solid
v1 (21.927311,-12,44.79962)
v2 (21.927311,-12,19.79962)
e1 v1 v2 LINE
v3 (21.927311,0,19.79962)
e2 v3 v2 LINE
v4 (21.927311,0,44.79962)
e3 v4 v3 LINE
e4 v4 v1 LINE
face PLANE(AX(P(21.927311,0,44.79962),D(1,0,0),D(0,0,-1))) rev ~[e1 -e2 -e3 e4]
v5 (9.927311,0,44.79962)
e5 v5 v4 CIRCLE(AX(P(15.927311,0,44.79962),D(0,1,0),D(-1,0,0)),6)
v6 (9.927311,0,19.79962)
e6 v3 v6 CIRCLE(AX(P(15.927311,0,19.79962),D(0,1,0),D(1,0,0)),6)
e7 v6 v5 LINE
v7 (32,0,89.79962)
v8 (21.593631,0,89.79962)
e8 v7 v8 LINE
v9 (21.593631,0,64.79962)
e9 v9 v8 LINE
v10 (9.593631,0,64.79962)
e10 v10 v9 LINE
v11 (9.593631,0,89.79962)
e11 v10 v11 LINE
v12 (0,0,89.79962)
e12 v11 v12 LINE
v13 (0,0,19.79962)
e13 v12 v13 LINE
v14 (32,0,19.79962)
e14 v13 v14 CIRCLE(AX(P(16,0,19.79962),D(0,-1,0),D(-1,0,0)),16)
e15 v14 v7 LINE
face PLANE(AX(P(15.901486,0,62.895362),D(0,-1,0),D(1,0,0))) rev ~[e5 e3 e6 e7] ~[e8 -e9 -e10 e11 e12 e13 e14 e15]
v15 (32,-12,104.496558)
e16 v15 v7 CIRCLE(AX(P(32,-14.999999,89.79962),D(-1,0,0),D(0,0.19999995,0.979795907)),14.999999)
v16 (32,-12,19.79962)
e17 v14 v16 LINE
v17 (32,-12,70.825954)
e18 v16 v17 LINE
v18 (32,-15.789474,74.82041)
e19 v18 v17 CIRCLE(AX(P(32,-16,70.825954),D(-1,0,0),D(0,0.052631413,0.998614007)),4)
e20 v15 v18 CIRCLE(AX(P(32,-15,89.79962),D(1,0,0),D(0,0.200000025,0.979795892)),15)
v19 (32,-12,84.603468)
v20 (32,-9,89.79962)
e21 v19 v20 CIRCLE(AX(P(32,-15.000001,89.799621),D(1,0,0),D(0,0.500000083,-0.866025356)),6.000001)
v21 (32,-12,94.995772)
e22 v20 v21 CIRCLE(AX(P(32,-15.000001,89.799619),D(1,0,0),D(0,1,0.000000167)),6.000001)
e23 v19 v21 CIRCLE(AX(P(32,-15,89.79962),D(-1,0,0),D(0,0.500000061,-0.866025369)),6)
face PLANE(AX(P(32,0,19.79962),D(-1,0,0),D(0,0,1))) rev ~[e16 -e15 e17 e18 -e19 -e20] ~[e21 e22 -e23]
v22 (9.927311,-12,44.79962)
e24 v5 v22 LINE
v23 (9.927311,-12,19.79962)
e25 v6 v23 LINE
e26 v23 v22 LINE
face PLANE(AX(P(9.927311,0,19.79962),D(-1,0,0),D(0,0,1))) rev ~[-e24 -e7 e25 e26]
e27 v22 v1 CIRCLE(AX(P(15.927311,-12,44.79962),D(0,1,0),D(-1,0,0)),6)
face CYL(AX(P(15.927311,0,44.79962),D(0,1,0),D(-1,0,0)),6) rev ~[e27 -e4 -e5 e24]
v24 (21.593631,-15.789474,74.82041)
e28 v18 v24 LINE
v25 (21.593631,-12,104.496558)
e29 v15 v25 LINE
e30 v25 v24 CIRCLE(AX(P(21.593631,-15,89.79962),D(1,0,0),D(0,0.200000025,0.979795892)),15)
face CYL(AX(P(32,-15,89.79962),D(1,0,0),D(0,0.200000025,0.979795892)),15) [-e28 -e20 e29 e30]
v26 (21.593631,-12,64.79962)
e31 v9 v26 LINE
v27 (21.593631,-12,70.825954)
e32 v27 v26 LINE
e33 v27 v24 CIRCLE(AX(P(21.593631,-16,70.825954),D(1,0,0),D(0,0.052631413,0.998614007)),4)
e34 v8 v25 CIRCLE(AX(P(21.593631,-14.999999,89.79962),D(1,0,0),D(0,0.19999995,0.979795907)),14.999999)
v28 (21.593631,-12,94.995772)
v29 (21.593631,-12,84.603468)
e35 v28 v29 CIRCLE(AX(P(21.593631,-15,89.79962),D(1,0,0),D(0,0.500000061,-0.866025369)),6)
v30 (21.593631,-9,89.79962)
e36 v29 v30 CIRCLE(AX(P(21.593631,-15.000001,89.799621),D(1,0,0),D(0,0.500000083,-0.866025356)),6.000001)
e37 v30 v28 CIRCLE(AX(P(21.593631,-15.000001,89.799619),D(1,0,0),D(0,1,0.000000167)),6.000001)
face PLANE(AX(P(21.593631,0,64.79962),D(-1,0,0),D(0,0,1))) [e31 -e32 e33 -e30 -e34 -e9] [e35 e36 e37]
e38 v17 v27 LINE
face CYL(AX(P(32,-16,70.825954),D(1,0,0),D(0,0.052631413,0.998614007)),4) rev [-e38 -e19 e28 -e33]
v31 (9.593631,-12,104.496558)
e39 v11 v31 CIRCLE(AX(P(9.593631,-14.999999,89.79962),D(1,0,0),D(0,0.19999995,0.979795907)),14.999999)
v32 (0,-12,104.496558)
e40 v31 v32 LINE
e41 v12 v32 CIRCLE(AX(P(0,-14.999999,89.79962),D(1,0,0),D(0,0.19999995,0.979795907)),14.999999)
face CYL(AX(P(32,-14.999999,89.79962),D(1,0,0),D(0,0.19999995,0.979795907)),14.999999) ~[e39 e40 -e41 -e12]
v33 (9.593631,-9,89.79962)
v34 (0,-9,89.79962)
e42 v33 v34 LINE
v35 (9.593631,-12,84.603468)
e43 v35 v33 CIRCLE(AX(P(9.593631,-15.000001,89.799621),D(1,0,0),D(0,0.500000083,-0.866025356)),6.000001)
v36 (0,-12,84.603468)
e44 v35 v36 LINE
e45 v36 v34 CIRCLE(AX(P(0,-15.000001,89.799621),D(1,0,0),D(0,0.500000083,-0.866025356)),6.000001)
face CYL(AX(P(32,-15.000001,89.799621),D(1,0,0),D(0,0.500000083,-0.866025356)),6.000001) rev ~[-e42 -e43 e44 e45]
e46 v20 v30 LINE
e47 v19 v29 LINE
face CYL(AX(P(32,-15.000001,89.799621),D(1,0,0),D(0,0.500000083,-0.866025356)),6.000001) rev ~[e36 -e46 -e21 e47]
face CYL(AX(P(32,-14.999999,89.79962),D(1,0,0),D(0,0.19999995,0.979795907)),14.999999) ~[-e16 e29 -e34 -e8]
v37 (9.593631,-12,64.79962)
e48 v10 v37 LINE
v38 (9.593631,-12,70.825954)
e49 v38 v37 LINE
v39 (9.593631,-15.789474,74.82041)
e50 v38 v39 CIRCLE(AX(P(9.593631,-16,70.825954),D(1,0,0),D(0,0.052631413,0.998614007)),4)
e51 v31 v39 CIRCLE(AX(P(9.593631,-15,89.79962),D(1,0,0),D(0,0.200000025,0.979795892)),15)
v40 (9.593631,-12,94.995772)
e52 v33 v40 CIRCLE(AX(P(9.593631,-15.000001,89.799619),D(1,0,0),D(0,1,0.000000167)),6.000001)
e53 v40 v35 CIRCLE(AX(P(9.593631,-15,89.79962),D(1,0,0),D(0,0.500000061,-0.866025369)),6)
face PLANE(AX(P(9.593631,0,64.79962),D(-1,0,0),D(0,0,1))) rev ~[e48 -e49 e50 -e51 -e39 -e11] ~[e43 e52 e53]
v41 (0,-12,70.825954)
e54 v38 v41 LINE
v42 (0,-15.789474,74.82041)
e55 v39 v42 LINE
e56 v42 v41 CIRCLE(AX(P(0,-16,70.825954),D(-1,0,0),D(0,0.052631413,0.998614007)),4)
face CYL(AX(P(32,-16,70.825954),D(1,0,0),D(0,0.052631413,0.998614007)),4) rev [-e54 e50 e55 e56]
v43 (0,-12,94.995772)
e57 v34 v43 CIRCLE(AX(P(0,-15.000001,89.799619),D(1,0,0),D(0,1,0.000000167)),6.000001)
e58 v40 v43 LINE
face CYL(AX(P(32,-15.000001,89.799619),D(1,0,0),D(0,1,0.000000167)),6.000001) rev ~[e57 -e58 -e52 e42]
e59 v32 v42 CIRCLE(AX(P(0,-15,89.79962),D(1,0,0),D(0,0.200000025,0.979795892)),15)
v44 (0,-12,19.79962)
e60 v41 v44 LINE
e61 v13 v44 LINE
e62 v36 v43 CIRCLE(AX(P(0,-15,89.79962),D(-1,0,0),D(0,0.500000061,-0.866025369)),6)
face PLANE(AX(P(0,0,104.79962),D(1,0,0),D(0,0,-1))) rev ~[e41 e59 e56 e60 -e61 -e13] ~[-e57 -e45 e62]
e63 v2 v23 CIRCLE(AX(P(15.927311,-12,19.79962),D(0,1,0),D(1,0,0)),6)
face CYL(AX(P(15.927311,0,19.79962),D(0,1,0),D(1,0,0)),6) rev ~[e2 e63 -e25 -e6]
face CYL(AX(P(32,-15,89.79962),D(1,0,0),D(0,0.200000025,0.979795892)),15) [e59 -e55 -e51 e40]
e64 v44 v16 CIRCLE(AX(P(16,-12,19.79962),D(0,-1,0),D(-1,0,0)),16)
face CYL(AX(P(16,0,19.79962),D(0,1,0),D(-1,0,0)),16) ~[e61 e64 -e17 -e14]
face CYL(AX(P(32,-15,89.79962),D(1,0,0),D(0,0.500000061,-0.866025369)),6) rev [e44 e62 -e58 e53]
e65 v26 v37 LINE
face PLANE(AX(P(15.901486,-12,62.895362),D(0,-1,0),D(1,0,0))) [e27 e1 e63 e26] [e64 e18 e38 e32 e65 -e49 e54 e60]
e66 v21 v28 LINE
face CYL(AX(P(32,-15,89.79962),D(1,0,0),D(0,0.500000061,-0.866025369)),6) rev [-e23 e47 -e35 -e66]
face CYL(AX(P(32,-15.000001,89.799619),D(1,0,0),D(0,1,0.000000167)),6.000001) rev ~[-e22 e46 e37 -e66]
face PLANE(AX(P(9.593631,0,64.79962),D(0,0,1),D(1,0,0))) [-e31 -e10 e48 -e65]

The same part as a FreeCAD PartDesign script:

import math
import FreeCAD as App
import Part
import Sketcher

V = App.Vector
Q = App.Units.Quantity

doc = App.newDocument("Part")
body = doc.addObject("PartDesign::Body", "Body")

# Sketch on XZ plane
sketch1 = body.newObject("Sketcher::SketchObject", "Sketch")
sketch1.AttachmentSupport = (doc.getObject("XZ_Plane"), [""])
sketch1.MapMode = "FlatFace"
sketch1.addGeometry([
    Part.LineSegment(V(0, 105, 0), V(0, 20, 0)),  # 0
    Part.ArcOfCircle(Part.Circle(V(16, 20, 0), V(0, 0, 1), 16), math.radians(180), math.radians(360)),  # 1
    Part.LineSegment(V(32, 20, 0), V(32, 105, 0)),  # 2
    Part.LineSegment(V(32, 105, 0), V(0, 105, 0)),  # 3
    Part.ArcOfCircle(Part.Circle(V(16, 20, 0), V(0, 0, 1), 6), math.radians(180), math.radians(360)),  # 4
    Part.LineSegment(V(10, 20, 0), V(10, 45, 0)),  # 5
    Part.ArcOfCircle(Part.Circle(V(16, 45, 0), V(0, 0, 1), 6), math.radians(0), math.radians(180)),  # 6
    Part.LineSegment(V(22, 45, 0), V(22, 20, 0)),  # 7
], False)
sketch1.addConstraint([
    Sketcher.Constraint("Tangent", 0, 2, 1, 1),
    Sketcher.Constraint("Tangent", 1, 2, 2, 1),
    Sketcher.Constraint("Coincident", 2, 2, 3, 1),
    Sketcher.Constraint("Coincident", 3, 2, 0, 1),
    Sketcher.Constraint("Tangent", 4, 1, 5, 1),
    Sketcher.Constraint("Tangent", 5, 2, 6, 2),
    Sketcher.Constraint("Tangent", 6, 1, 7, 1),
    Sketcher.Constraint("Tangent", 7, 2, 4, 2),
    Sketcher.Constraint("Vertical", 0),
    Sketcher.Constraint("Vertical", 2),
    Sketcher.Constraint("Horizontal", 3),
    Sketcher.Constraint("Vertical", 5),
    Sketcher.Constraint("Vertical", 7),
    Sketcher.Constraint("PointOnObject", 0, 2, -2),
    Sketcher.Constraint("Horizontal", 1, 3, 4, 3),
    Sketcher.Constraint("Radius", 1, Q("16 mm")),
    Sketcher.Constraint("Radius", 4, Q("6 mm")),
    Sketcher.Constraint("DistanceY", 0, 2, 0, 1, Q("85 mm")),
    Sketcher.Constraint("DistanceY", 5, 1, 5, 2, Q("25 mm")),
    Sketcher.Constraint("DistanceY", -1, 1, 1, 3, Q("19.79962 mm")),
    Sketcher.Constraint("DistanceX", -1, 1, 4, 3, Q("15.927311 mm")),
])
pad1 = body.newObject("PartDesign::Pad", "Pad")
pad1.Profile = sketch1
pad1.Length = 12

# Sketch on YZ plane
sketch2 = body.newObject("Sketcher::SketchObject", "Sketch001")
sketch2.AttachmentSupport = (doc.getObject("YZ_Plane"), [""])
sketch2.MapMode = "FlatFace"
sketch2.AttachmentOffset = App.Placement(V(0, 0, 32), App.Rotation())
sketch2.addGeometry([
    Part.LineSegment(V(-12, 95, 0), V(-12, 104.5, 0)),  # 0
    Part.ArcOfCircle(Part.Circle(V(-15, 89.8, 0), V(0, 0, 1), 15), math.radians(78), math.radians(267)),  # 1
    Part.ArcOfCircle(Part.Circle(V(-16, 70.8, 0), V(0, 0, 1), 4), math.radians(0), math.radians(87)),  # 2
    Part.LineSegment(V(-12, 70.8, 0), V(-12, 84.6, 0)),  # 3
    Part.ArcOfCircle(Part.Circle(V(-15, 89.8, 0), V(0, 0, 1), 6), math.radians(60), math.radians(300)),  # 4
], False)
sketch2.addConstraint([
    Sketcher.Constraint("Coincident", 0, 2, 1, 1),
    Sketcher.Constraint("Tangent", 1, 2, 2, 2),
    Sketcher.Constraint("Tangent", 2, 1, 3, 1),
    Sketcher.Constraint("Coincident", 3, 2, 4, 2),
    Sketcher.Constraint("Coincident", 4, 1, 0, 1),
    Sketcher.Constraint("Vertical", 0),
    Sketcher.Constraint("Vertical", 3),
    Sketcher.Constraint("Coincident", 4, 3, 1, 3),
    Sketcher.Constraint("Vertical", 0, 2, 2, 1),
    Sketcher.Constraint("Radius", 1, Q("15 mm")),
    Sketcher.Constraint("Radius", 2, Q("4 mm")),
    Sketcher.Constraint("Radius", 4, Q("6 mm")),
    Sketcher.Constraint("DistanceX", 1, 3, -1, 1, Q("15 mm")),
    Sketcher.Constraint("DistanceX", 2, 3, -1, 1, Q("16 mm")),
    Sketcher.Constraint("DistanceY", -1, 1, 1, 3, Q("89.79962 mm")),
])
pad2 = body.newObject("PartDesign::Pad", "Pad001")
pad2.Profile = sketch2
pad2.Length = 32
pad2.Reversed = True

# Sketch on YZ plane
sketch3 = body.newObject("Sketcher::SketchObject", "Sketch002")
sketch3.AttachmentSupport = (doc.getObject("YZ_Plane"), [""])
sketch3.MapMode = "FlatFace"
sketch3.AttachmentOffset = App.Placement(V(0, 0, 32), App.Rotation())
sketch3.addGeometry([
    Part.ArcOfCircle(Part.Circle(V(-15, 90, 0), V(0, 0, 1), 6), math.radians(0), math.radians(60)),
    Part.LineSegment(V(-12, 95, 0), V(-12, 85, 0)),
    Part.ArcOfCircle(Part.Circle(V(-15, 90, 0), V(0, 0, 1), 6), math.radians(-60), math.radians(0)),
], False)
sketch3.addConstraint([
    Sketcher.Constraint("Coincident", 0, 2, 1, 1),
    Sketcher.Constraint("Coincident", 1, 2, 2, 1),
    Sketcher.Constraint("Tangent", 2, 2, 0, 1),
    Sketcher.Constraint("Vertical", 1),
    Sketcher.Constraint("Equal", 0, 2),
    Sketcher.Constraint("Horizontal", 0, 3, 2, 2),
    Sketcher.Constraint("Radius", 0, Q("6.000001 mm")),
    Sketcher.Constraint("DistanceX", 0, 3, -1, 1, Q("15.000001 mm")),
    Sketcher.Constraint("DistanceX", 0, 2, -1, 1, Q("12 mm")),
    Sketcher.Constraint("DistanceY", -1, 1, 0, 3, Q("89.799619 mm")),
])
pocket1 = body.newObject("PartDesign::Pocket", "Pocket")
pocket1.Profile = sketch3
pocket1.Type = "ThroughAll"

# Sketch on YZ plane
sketch4 = body.newObject("Sketcher::SketchObject", "Sketch003")
sketch4.AttachmentSupport = (doc.getObject("YZ_Plane"), [""])
sketch4.MapMode = "FlatFace"
sketch4.AttachmentOffset = App.Placement(V(0, 0, 32), App.Rotation())
sketch4.addGeometry([
    Part.ArcOfCircle(Part.Circle(V(-15, 89.8, 0), V(0, 0, 1), 15), math.radians(0), math.radians(78)),
    Part.LineSegment(V(0, 89.8, 0), V(0, 104.8, 0)),
    Part.LineSegment(V(0, 104.8, 0), V(-12, 104.8, 0)),
    Part.LineSegment(V(-12, 104.8, 0), V(-12, 104.5, 0)),
], False)
sketch4.addConstraint([
    Sketcher.Constraint("Tangent", 0, 1, 1, 1),
    Sketcher.Constraint("Coincident", 1, 2, 2, 1),
    Sketcher.Constraint("Coincident", 2, 2, 3, 1),
    Sketcher.Constraint("Coincident", 3, 2, 0, 2),
    Sketcher.Constraint("Vertical", 1),
    Sketcher.Constraint("Horizontal", 2),
    Sketcher.Constraint("Vertical", 3),
    Sketcher.Constraint("PointOnObject", 0, 1, -2),
    Sketcher.Constraint("Radius", 0, Q("14.999999 mm")),
    Sketcher.Constraint("DistanceX", 2, 2, 2, 1, Q("12 mm")),
    Sketcher.Constraint("DistanceY", 1, 1, 1, 2, Q("15 mm")),
    Sketcher.Constraint("DistanceY", -1, 1, 0, 3, Q("89.79962 mm")),
])
pocket2 = body.newObject("PartDesign::Pocket", "Pocket001")
pocket2.Profile = sketch4
pocket2.Type = "ThroughAll"

# Sketch on XZ plane
sketch5 = body.newObject("Sketcher::SketchObject", "Sketch004")
sketch5.AttachmentSupport = (doc.getObject("XZ_Plane"), [""])
sketch5.MapMode = "FlatFace"
sketch5.addGeometry([
    Part.LineSegment(V(10, 105, 0), V(10, 65, 0)),
    Part.LineSegment(V(10, 65, 0), V(22, 65, 0)),
    Part.LineSegment(V(22, 65, 0), V(22, 105, 0)),
    Part.LineSegment(V(22, 105, 0), V(10, 105, 0)),
], False)
sketch5.addConstraint([
    Sketcher.Constraint("Coincident", 0, 2, 1, 1),
    Sketcher.Constraint("Coincident", 1, 2, 2, 1),
    Sketcher.Constraint("Coincident", 2, 2, 3, 1),
    Sketcher.Constraint("Coincident", 3, 2, 0, 1),
    Sketcher.Constraint("Vertical", 0),
    Sketcher.Constraint("Horizontal", 1),
    Sketcher.Constraint("Vertical", 2),
    Sketcher.Constraint("Horizontal", 3),
    Sketcher.Constraint("DistanceX", 1, 1, 1, 2, Q("12 mm")),
    Sketcher.Constraint("DistanceY", 0, 2, 0, 1, Q("40 mm")),
    Sketcher.Constraint("DistanceX", -1, 1, 0, 2, Q("9.593631 mm")),
    Sketcher.Constraint("DistanceY", -1, 1, 0, 2, Q("64.79962 mm")),
])
pocket3 = body.newObject("PartDesign::Pocket", "Pocket002")
pocket3.Profile = sketch5
pocket3.Type = "ThroughAll"
pocket3.Reversed = True

doc.recompute()
